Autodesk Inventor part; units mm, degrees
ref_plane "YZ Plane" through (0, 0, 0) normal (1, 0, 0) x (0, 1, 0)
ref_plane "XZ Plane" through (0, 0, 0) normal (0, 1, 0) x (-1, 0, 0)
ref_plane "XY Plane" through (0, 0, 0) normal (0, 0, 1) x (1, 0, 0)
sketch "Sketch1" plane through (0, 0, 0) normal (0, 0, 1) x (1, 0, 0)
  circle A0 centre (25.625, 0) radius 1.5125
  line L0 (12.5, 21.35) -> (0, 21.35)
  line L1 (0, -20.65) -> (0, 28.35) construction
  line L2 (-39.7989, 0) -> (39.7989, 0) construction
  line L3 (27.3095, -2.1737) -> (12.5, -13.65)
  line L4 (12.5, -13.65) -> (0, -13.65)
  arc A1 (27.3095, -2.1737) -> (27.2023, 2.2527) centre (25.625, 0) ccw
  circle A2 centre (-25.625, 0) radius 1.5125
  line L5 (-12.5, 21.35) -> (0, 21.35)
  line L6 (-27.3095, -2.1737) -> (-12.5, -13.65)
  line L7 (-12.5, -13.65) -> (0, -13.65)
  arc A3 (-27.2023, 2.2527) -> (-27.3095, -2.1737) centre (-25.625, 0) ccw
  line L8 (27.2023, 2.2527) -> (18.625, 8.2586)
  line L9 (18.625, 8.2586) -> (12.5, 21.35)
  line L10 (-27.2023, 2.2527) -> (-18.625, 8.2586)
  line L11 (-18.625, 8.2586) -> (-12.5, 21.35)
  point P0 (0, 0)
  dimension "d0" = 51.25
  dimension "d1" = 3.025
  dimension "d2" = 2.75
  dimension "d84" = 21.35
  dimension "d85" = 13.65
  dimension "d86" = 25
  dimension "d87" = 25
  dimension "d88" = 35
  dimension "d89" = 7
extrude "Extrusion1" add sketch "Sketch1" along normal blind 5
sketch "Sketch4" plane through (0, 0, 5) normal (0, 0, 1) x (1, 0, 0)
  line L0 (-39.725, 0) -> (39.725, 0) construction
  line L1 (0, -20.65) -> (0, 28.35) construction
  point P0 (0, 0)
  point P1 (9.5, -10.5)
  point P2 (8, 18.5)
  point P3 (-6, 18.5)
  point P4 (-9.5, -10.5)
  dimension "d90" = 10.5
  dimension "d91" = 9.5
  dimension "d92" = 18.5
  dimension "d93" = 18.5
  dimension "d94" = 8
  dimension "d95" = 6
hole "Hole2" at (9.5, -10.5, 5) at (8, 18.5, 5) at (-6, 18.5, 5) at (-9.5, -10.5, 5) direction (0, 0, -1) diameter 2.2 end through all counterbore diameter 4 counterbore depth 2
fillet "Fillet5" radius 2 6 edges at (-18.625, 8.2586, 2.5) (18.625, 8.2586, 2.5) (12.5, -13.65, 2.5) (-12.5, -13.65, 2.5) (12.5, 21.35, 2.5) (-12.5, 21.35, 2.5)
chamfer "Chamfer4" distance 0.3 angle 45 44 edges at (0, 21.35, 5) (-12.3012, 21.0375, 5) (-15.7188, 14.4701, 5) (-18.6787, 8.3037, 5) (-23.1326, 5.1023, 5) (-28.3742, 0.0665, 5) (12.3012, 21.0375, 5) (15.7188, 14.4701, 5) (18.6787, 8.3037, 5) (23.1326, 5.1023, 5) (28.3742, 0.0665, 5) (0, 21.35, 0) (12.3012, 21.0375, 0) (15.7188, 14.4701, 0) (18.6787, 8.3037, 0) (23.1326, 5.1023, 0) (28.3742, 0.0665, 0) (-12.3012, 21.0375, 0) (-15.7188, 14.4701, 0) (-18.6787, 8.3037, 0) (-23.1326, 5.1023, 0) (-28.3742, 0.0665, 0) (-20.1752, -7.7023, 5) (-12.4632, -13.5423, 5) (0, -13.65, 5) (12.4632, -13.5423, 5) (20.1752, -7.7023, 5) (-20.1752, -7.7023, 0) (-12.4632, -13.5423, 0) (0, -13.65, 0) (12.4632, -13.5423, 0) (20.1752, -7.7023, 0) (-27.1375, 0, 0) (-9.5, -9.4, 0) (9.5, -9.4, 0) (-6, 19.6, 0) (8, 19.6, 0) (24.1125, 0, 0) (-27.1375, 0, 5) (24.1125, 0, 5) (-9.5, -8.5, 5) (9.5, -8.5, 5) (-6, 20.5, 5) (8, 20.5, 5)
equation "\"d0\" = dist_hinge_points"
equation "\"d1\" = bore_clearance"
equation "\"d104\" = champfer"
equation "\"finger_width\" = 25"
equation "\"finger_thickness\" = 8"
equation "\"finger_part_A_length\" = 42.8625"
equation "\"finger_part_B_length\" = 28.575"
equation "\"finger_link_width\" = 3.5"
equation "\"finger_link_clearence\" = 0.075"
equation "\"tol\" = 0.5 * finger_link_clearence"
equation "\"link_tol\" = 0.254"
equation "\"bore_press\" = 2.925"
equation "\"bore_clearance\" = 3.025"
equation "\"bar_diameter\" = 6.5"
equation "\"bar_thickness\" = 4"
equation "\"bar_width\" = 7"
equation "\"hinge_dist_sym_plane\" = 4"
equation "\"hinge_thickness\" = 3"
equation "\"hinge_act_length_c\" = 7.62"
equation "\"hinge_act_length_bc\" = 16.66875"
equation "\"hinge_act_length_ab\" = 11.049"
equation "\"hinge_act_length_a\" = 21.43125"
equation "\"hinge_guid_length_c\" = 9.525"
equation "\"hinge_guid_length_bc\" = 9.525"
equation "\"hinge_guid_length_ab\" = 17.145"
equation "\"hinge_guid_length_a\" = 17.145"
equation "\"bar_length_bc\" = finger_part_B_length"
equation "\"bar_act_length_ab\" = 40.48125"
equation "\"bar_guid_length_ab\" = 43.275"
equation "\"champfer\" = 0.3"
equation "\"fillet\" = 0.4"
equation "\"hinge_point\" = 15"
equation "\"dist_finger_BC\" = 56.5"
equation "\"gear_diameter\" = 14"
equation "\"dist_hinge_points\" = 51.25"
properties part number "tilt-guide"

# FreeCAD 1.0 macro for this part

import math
import FreeCAD as App
import Part
import Sketcher

V = App.Vector
Q = App.Units.Quantity


def edges_at(feature, points):
    """Names of the edges that pass closest to the given points."""
    edges = feature.Shape.Edges
    near = lambda p: min(range(len(edges)), key=lambda i: edges[i].distToShape(Part.Vertex(*p))[0])
    return sorted({f"Edge{near(p) + 1}" for p in points})

doc = App.newDocument("Part")
params = doc.addObject("Spreadsheet::Sheet", "Params")
for row, (alias, value) in enumerate([
    ("sketch1_width", "25 mm"),
    ("sketch1_radius", "2.75 mm"),
    ("pad1_length", "5 mm"),
    ("sketch2_diameter", "2.2 mm"),
    ("hole_diameter", "2.2 mm"),
    ("hole_cbore_diameter", "4 mm"),
    ("hole_cbore_depth", "2 mm"),
    ("fillet_radius", "2 mm"),
    ("chamfer_size", "0.3 mm"),
], start=1):
    params.set(f"A{row}", alias)
    params.set(f"B{row}", "=" + value)
    params.setAlias(f"B{row}", alias)

body = doc.addObject("PartDesign::Body", "Body")

# Sketch on XY plane
sketch1 = body.newObject("Sketcher::SketchObject", "Sketch")
sketch1.AttachmentSupport = (doc.getObject("XY_Plane"), [""])
sketch1.MapMode = "FlatFace"
sketch1.addGeometry(Part.LineSegment(V(18.6, 8.3, 0), V(12.5, 21.4, 0)), False)
sketch1.addGeometry(Part.LineSegment(V(12.5, 21.4, 0), V(-12.5, 21.4, 0)), False)
sketch1.addGeometry(Part.LineSegment(V(-12.5, 21.4, 0), V(-18.6, 8.3, 0)), False)
sketch1.addGeometry(Part.LineSegment(V(-18.6, 8.3, 0), V(-27.2, 2.3, 0)), False)
sketch1.addGeometry(Part.ArcOfCircle(Part.Circle(V(-25.6, 0, 0), V(0, 0, 1), 2.8), math.radians(125), math.radians(232)), False)
sketch1.addGeometry(Part.LineSegment(V(-27.3, -2.2, 0), V(-12.5, -13.7, 0)), False)
sketch1.addGeometry(Part.LineSegment(V(-12.5, -13.7, 0), V(12.5, -13.7, 0)), False)
sketch1.addGeometry(Part.LineSegment(V(12.5, -13.7, 0), V(27.3, -2.2, 0)), False)
sketch1.addGeometry(Part.ArcOfCircle(Part.Circle(V(25.6, 0, 0), V(0, 0, 1), 2.8), math.radians(-52), math.radians(55)), False)
sketch1.addGeometry(Part.LineSegment(V(27.2, 2.3, 0), V(18.6, 8.3, 0)), False)
sketch1.addGeometry(Part.Circle(V(-25.6, 0, 0), V(0, 0, 1), 1.5), False)
sketch1.addGeometry(Part.Circle(V(25.6, 0, 0), V(0, 0, 1), 1.5), False)
sketch1.addConstraint(Sketcher.Constraint("Coincident", 0, 2, 1, 1))
sketch1.addConstraint(Sketcher.Constraint("Coincident", 1, 2, 2, 1))
sketch1.addConstraint(Sketcher.Constraint("Coincident", 2, 2, 3, 1))
sketch1.addConstraint(Sketcher.Constraint("Tangent", 3, 2, 4, 1))
sketch1.addConstraint(Sketcher.Constraint("Tangent", 4, 2, 5, 1))
sketch1.addConstraint(Sketcher.Constraint("Coincident", 5, 2, 6, 1))
sketch1.addConstraint(Sketcher.Constraint("Coincident", 6, 2, 7, 1))
sketch1.addConstraint(Sketcher.Constraint("Tangent", 7, 2, 8, 1))
sketch1.addConstraint(Sketcher.Constraint("Tangent", 8, 2, 9, 1))
sketch1.addConstraint(Sketcher.Constraint("Coincident", 9, 2, 0, 1))
sketch1.addConstraint(Sketcher.Constraint("Horizontal", 1))
sketch1.addConstraint(Sketcher.Constraint("Horizontal", 6))
sketch1.addConstraint(Sketcher.Constraint("Coincident", 10, 3, 4, 3))
sketch1.addConstraint(Sketcher.Constraint("Coincident", 11, 3, 8, 3))
sketch1.addConstraint(Sketcher.Constraint("Equal", 4, 8))
sketch1.addConstraint(Sketcher.Constraint("Equal", 10, 11))
sketch1.addConstraint(Sketcher.Constraint("Symmetric", 4, 3, 8, 3, -1, 1))
sketch1.addConstraint(Sketcher.Constraint("Symmetric", 4, 2, 7, 2, -2))
sketch1.addConstraint(Sketcher.Constraint("Symmetric", 2, 2, 9, 2, -2))
sketch1.addConstraint(Sketcher.Constraint("Vertical", 1, 2, 5, 2))
sketch1.addConstraint(Sketcher.Constraint("Vertical", 0, 2, 6, 2))
sketch1.addConstraint(Sketcher.Constraint("DistanceX", 1, 2, 1, 1, Q("25 mm")))
sketch1.addConstraint(Sketcher.Constraint("Radius", 4, Q("2.75 mm")))
sketch1.addConstraint(Sketcher.Constraint("Diameter", 10, Q("3.025 mm")))
sketch1.addConstraint(Sketcher.Constraint("DistanceX", 4, 3, 2, 2, Q("7 mm")))
sketch1.addConstraint(Sketcher.Constraint("DistanceY", 6, 2, 0, 2, Q("35 mm")))
sketch1.addConstraint(Sketcher.Constraint("DistanceY", -1, 1, 0, 2, Q("21.35 mm")))
sketch1.addConstraint(Sketcher.Constraint("Angle", 3, Q("-145 deg")))
sketch1.addConstraint(Sketcher.Constraint("DistanceX", 4, 3, 8, 3, Q("51.25 mm")))
sketch1.setExpression("Constraints[21]", "Params.sketch1_width")
sketch1.setExpression("Constraints[22]", "Params.sketch1_radius")
pad1 = body.newObject("PartDesign::Pad", "Pad")
pad1.Profile = sketch1
pad1.setExpression("Length", "Params.pad1_length")

# Sketch on XY plane
sketch2 = body.newObject("Sketcher::SketchObject", "Sketch001")
sketch2.AttachmentSupport = (doc.getObject("XY_Plane"), [""])
sketch2.MapMode = "FlatFace"
sketch2.AttachmentOffset = App.Placement(V(0, 0, 5), App.Rotation())
sketch2.addGeometry(Part.Circle(V(9.5, -10.5, 0), V(0, 0, 1), 1.1), False)
sketch2.addGeometry(Part.Circle(V(8, 18.5, 0), V(0, 0, 1), 1.1), False)
sketch2.addGeometry(Part.Circle(V(-6, 18.5, 0), V(0, 0, 1), 1.1), False)
sketch2.addGeometry(Part.Circle(V(-9.5, -10.5, 0), V(0, 0, 1), 1.1), False)
sketch2.addConstraint(Sketcher.Constraint("Equal", 0, 1))
sketch2.addConstraint(Sketcher.Constraint("Equal", 1, 2))
sketch2.addConstraint(Sketcher.Constraint("Equal", 2, 3))
sketch2.addConstraint(Sketcher.Constraint("Symmetric", 0, 3, 3, 3, -2))
sketch2.addConstraint(Sketcher.Constraint("Horizontal", 1, 3, 2, 3))
sketch2.addConstraint(Sketcher.Constraint("Diameter", 0, Q("2.2 mm")))
sketch2.addConstraint(Sketcher.Constraint("DistanceX", -1, 1, 1, 3, Q("8 mm")))
sketch2.addConstraint(Sketcher.Constraint("DistanceX", 2, 3, -1, 1, Q("6 mm")))
sketch2.addConstraint(Sketcher.Constraint("DistanceY", 0, 3, 1, 3, Q("29 mm")))
sketch2.addConstraint(Sketcher.Constraint("DistanceX", 3, 3, 0, 3, Q("19 mm")))
sketch2.addConstraint(Sketcher.Constraint("DistanceY", 0, 3, -1, 1, Q("10.5 mm")))
sketch2.setExpression("Constraints[5]", "Params.sketch2_diameter")
doc.recompute()
hole = body.newObject("PartDesign::Hole", "Hole")
hole.Profile = sketch2
hole.ThreadType = "None"
hole.setExpression("Diameter", "Params.hole_diameter")
hole.DepthType = "ThroughAll"
hole.HoleCutType = "Counterbore"
hole.setExpression("HoleCutDiameter", "Params.hole_cbore_diameter")
hole.setExpression("HoleCutDepth", "Params.hole_cbore_depth")
doc.recompute()

fillet = body.newObject("PartDesign::Fillet", "Fillet")
fillet.Base = (hole, edges_at(hole, [
    (-18.625, 8.259, 2.5),
    (18.625, 8.259, 2.5),
    (12.5, -13.65, 2.5),
    (-12.5, -13.65, 2.5),
    (12.5, 21.35, 2.5),
    (-12.5, 21.35, 2.5),
]))
fillet.setExpression("Radius", "Params.fillet_radius")
doc.recompute()

chamfer = body.newObject("PartDesign::Chamfer", "Chamfer")
chamfer.Base = (fillet, edges_at(fillet, [
    (0, 21.35, 5),
    (-12.301, 21.038, 5),
    (-15.719, 14.47, 5),
    (-18.679, 8.304, 5),
    (-23.133, 5.102, 5),
    (-28.374, 0.067, 5),
    (12.301, 21.038, 5),
    (15.719, 14.47, 5),
    (18.679, 8.304, 5),
    (23.133, 5.102, 5),
    (28.374, 0.067, 5),
    (0, 21.35, 0),
    (12.301, 21.038, 0),
    (15.719, 14.47, 0),
    (18.679, 8.304, 0),
    (23.133, 5.102, 0),
    (28.374, 0.067, 0),
    (-12.301, 21.038, 0),
    (-15.719, 14.47, 0),
    (-18.679, 8.304, 0),
    (-23.133, 5.102, 0),
    (-28.374, 0.067, 0),
    (-20.175, -7.702, 5),
    (-12.463, -13.542, 5),
    (0, -13.65, 5),
    (12.463, -13.542, 5),
    (20.175, -7.702, 5),
    (-20.175, -7.702, 0),
    (-12.463, -13.542, 0),
    (0, -13.65, 0),
    (12.463, -13.542, 0),
    (20.175, -7.702, 0),
    (-27.137, 0, 0),
    (-9.5, -9.4, 0),
    (9.5, -9.4, 0),
    (-6, 19.6, 0),
    (8, 19.6, 0),
    (24.113, 0, 0),
    (-27.137, 0, 5),
    (24.113, 0, 5),
    (-9.5, -8.5, 5),
    (9.5, -8.5, 5),
    (-6, 20.5, 5),
    (8, 20.5, 5),
]))
chamfer.setExpression("Size", "Params.chamfer_size")

doc.recompute()
